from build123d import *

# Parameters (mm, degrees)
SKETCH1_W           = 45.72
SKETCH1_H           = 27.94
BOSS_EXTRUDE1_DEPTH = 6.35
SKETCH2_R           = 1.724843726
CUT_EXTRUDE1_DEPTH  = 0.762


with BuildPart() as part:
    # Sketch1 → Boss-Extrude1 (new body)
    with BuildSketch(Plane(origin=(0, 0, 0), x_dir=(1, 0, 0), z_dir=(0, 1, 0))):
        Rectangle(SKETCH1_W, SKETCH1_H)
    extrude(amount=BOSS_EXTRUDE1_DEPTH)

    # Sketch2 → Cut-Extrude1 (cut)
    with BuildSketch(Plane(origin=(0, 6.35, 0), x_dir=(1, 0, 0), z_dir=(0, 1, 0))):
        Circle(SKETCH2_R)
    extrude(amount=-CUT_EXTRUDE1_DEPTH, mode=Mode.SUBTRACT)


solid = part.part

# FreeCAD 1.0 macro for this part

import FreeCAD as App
import Part
import Sketcher
from FreeCAD import Vector
Q = App.Units.Quantity


def add_polygon(sketch, points):
    """Adds a closed chain of lines whose ends are joined by coincident constraints."""
    first, n = sketch.GeometryCount, len(points)
    for a, b in zip(points, points[1:] + points[:1]):
        sketch.addGeometry(Part.LineSegment(App.Vector(*a, 0), App.Vector(*b, 0)), False)
    for i in range(n):
        sketch.addConstraint(Sketcher.Constraint("Coincident", first + i, 2, first + (i + 1) % n, 1))

doc = App.newDocument("Part")
body = doc.addObject("PartDesign::Body", "Body")

# Sketch on XZ plane
sketch1 = body.newObject("Sketcher::SketchObject", "Sketch")
sketch1.AttachmentSupport = (doc.getObject("XZ_Plane"), [""])
sketch1.MapMode = "FlatFace"
add_polygon(sketch1, [(-23, -14), (-23, 14), (23, 14), (23, -14)])  # lines 0-3
sketch1.addConstraint(Sketcher.Constraint("Vertical", 0))
sketch1.addConstraint(Sketcher.Constraint("Horizontal", 1))
sketch1.addConstraint(Sketcher.Constraint("Vertical", 2))
sketch1.addConstraint(Sketcher.Constraint("Horizontal", 3))
sketch1.addConstraint(Sketcher.Constraint("Symmetric", 0, 2, 2, 2, -1, 1))
sketch1.addConstraint(Sketcher.Constraint("DistanceX", 1, 1, 1, 2, Q("1.8 in")))
sketch1.addConstraint(Sketcher.Constraint("DistanceY", 0, 1, 0, 2, Q("1.1 in")))
pad1 = body.newObject("PartDesign::Pad", "Pad")
pad1.Profile = sketch1
pad1.Length = Q("0.25 in")
pad1.Reversed = True

# Sketch on XZ plane
sketch2 = body.newObject("Sketcher::SketchObject", "Sketch001")
sketch2.AttachmentSupport = (doc.getObject("XZ_Plane"), [""])
sketch2.MapMode = "FlatFace"
sketch2.AttachmentOffset = App.Placement(Vector(0, 0, -0.25 * 25.4), App.Rotation())
sketch2.addGeometry(Part.Circle(Vector(0, 0, 0), Vector(0, 0, 1), 1.7), False)
sketch2.addConstraint(Sketcher.Constraint("Coincident", 0, 3, -1, 1))
sketch2.addConstraint(Sketcher.Constraint("Diameter", 0, 3.449687))
pocket1 = body.newObject("PartDesign::Pocket", "Pocket")
pocket1.Profile = sketch2
pocket1.Length = Q("0.03 in")
pocket1.Reversed = True

doc.recompute()
